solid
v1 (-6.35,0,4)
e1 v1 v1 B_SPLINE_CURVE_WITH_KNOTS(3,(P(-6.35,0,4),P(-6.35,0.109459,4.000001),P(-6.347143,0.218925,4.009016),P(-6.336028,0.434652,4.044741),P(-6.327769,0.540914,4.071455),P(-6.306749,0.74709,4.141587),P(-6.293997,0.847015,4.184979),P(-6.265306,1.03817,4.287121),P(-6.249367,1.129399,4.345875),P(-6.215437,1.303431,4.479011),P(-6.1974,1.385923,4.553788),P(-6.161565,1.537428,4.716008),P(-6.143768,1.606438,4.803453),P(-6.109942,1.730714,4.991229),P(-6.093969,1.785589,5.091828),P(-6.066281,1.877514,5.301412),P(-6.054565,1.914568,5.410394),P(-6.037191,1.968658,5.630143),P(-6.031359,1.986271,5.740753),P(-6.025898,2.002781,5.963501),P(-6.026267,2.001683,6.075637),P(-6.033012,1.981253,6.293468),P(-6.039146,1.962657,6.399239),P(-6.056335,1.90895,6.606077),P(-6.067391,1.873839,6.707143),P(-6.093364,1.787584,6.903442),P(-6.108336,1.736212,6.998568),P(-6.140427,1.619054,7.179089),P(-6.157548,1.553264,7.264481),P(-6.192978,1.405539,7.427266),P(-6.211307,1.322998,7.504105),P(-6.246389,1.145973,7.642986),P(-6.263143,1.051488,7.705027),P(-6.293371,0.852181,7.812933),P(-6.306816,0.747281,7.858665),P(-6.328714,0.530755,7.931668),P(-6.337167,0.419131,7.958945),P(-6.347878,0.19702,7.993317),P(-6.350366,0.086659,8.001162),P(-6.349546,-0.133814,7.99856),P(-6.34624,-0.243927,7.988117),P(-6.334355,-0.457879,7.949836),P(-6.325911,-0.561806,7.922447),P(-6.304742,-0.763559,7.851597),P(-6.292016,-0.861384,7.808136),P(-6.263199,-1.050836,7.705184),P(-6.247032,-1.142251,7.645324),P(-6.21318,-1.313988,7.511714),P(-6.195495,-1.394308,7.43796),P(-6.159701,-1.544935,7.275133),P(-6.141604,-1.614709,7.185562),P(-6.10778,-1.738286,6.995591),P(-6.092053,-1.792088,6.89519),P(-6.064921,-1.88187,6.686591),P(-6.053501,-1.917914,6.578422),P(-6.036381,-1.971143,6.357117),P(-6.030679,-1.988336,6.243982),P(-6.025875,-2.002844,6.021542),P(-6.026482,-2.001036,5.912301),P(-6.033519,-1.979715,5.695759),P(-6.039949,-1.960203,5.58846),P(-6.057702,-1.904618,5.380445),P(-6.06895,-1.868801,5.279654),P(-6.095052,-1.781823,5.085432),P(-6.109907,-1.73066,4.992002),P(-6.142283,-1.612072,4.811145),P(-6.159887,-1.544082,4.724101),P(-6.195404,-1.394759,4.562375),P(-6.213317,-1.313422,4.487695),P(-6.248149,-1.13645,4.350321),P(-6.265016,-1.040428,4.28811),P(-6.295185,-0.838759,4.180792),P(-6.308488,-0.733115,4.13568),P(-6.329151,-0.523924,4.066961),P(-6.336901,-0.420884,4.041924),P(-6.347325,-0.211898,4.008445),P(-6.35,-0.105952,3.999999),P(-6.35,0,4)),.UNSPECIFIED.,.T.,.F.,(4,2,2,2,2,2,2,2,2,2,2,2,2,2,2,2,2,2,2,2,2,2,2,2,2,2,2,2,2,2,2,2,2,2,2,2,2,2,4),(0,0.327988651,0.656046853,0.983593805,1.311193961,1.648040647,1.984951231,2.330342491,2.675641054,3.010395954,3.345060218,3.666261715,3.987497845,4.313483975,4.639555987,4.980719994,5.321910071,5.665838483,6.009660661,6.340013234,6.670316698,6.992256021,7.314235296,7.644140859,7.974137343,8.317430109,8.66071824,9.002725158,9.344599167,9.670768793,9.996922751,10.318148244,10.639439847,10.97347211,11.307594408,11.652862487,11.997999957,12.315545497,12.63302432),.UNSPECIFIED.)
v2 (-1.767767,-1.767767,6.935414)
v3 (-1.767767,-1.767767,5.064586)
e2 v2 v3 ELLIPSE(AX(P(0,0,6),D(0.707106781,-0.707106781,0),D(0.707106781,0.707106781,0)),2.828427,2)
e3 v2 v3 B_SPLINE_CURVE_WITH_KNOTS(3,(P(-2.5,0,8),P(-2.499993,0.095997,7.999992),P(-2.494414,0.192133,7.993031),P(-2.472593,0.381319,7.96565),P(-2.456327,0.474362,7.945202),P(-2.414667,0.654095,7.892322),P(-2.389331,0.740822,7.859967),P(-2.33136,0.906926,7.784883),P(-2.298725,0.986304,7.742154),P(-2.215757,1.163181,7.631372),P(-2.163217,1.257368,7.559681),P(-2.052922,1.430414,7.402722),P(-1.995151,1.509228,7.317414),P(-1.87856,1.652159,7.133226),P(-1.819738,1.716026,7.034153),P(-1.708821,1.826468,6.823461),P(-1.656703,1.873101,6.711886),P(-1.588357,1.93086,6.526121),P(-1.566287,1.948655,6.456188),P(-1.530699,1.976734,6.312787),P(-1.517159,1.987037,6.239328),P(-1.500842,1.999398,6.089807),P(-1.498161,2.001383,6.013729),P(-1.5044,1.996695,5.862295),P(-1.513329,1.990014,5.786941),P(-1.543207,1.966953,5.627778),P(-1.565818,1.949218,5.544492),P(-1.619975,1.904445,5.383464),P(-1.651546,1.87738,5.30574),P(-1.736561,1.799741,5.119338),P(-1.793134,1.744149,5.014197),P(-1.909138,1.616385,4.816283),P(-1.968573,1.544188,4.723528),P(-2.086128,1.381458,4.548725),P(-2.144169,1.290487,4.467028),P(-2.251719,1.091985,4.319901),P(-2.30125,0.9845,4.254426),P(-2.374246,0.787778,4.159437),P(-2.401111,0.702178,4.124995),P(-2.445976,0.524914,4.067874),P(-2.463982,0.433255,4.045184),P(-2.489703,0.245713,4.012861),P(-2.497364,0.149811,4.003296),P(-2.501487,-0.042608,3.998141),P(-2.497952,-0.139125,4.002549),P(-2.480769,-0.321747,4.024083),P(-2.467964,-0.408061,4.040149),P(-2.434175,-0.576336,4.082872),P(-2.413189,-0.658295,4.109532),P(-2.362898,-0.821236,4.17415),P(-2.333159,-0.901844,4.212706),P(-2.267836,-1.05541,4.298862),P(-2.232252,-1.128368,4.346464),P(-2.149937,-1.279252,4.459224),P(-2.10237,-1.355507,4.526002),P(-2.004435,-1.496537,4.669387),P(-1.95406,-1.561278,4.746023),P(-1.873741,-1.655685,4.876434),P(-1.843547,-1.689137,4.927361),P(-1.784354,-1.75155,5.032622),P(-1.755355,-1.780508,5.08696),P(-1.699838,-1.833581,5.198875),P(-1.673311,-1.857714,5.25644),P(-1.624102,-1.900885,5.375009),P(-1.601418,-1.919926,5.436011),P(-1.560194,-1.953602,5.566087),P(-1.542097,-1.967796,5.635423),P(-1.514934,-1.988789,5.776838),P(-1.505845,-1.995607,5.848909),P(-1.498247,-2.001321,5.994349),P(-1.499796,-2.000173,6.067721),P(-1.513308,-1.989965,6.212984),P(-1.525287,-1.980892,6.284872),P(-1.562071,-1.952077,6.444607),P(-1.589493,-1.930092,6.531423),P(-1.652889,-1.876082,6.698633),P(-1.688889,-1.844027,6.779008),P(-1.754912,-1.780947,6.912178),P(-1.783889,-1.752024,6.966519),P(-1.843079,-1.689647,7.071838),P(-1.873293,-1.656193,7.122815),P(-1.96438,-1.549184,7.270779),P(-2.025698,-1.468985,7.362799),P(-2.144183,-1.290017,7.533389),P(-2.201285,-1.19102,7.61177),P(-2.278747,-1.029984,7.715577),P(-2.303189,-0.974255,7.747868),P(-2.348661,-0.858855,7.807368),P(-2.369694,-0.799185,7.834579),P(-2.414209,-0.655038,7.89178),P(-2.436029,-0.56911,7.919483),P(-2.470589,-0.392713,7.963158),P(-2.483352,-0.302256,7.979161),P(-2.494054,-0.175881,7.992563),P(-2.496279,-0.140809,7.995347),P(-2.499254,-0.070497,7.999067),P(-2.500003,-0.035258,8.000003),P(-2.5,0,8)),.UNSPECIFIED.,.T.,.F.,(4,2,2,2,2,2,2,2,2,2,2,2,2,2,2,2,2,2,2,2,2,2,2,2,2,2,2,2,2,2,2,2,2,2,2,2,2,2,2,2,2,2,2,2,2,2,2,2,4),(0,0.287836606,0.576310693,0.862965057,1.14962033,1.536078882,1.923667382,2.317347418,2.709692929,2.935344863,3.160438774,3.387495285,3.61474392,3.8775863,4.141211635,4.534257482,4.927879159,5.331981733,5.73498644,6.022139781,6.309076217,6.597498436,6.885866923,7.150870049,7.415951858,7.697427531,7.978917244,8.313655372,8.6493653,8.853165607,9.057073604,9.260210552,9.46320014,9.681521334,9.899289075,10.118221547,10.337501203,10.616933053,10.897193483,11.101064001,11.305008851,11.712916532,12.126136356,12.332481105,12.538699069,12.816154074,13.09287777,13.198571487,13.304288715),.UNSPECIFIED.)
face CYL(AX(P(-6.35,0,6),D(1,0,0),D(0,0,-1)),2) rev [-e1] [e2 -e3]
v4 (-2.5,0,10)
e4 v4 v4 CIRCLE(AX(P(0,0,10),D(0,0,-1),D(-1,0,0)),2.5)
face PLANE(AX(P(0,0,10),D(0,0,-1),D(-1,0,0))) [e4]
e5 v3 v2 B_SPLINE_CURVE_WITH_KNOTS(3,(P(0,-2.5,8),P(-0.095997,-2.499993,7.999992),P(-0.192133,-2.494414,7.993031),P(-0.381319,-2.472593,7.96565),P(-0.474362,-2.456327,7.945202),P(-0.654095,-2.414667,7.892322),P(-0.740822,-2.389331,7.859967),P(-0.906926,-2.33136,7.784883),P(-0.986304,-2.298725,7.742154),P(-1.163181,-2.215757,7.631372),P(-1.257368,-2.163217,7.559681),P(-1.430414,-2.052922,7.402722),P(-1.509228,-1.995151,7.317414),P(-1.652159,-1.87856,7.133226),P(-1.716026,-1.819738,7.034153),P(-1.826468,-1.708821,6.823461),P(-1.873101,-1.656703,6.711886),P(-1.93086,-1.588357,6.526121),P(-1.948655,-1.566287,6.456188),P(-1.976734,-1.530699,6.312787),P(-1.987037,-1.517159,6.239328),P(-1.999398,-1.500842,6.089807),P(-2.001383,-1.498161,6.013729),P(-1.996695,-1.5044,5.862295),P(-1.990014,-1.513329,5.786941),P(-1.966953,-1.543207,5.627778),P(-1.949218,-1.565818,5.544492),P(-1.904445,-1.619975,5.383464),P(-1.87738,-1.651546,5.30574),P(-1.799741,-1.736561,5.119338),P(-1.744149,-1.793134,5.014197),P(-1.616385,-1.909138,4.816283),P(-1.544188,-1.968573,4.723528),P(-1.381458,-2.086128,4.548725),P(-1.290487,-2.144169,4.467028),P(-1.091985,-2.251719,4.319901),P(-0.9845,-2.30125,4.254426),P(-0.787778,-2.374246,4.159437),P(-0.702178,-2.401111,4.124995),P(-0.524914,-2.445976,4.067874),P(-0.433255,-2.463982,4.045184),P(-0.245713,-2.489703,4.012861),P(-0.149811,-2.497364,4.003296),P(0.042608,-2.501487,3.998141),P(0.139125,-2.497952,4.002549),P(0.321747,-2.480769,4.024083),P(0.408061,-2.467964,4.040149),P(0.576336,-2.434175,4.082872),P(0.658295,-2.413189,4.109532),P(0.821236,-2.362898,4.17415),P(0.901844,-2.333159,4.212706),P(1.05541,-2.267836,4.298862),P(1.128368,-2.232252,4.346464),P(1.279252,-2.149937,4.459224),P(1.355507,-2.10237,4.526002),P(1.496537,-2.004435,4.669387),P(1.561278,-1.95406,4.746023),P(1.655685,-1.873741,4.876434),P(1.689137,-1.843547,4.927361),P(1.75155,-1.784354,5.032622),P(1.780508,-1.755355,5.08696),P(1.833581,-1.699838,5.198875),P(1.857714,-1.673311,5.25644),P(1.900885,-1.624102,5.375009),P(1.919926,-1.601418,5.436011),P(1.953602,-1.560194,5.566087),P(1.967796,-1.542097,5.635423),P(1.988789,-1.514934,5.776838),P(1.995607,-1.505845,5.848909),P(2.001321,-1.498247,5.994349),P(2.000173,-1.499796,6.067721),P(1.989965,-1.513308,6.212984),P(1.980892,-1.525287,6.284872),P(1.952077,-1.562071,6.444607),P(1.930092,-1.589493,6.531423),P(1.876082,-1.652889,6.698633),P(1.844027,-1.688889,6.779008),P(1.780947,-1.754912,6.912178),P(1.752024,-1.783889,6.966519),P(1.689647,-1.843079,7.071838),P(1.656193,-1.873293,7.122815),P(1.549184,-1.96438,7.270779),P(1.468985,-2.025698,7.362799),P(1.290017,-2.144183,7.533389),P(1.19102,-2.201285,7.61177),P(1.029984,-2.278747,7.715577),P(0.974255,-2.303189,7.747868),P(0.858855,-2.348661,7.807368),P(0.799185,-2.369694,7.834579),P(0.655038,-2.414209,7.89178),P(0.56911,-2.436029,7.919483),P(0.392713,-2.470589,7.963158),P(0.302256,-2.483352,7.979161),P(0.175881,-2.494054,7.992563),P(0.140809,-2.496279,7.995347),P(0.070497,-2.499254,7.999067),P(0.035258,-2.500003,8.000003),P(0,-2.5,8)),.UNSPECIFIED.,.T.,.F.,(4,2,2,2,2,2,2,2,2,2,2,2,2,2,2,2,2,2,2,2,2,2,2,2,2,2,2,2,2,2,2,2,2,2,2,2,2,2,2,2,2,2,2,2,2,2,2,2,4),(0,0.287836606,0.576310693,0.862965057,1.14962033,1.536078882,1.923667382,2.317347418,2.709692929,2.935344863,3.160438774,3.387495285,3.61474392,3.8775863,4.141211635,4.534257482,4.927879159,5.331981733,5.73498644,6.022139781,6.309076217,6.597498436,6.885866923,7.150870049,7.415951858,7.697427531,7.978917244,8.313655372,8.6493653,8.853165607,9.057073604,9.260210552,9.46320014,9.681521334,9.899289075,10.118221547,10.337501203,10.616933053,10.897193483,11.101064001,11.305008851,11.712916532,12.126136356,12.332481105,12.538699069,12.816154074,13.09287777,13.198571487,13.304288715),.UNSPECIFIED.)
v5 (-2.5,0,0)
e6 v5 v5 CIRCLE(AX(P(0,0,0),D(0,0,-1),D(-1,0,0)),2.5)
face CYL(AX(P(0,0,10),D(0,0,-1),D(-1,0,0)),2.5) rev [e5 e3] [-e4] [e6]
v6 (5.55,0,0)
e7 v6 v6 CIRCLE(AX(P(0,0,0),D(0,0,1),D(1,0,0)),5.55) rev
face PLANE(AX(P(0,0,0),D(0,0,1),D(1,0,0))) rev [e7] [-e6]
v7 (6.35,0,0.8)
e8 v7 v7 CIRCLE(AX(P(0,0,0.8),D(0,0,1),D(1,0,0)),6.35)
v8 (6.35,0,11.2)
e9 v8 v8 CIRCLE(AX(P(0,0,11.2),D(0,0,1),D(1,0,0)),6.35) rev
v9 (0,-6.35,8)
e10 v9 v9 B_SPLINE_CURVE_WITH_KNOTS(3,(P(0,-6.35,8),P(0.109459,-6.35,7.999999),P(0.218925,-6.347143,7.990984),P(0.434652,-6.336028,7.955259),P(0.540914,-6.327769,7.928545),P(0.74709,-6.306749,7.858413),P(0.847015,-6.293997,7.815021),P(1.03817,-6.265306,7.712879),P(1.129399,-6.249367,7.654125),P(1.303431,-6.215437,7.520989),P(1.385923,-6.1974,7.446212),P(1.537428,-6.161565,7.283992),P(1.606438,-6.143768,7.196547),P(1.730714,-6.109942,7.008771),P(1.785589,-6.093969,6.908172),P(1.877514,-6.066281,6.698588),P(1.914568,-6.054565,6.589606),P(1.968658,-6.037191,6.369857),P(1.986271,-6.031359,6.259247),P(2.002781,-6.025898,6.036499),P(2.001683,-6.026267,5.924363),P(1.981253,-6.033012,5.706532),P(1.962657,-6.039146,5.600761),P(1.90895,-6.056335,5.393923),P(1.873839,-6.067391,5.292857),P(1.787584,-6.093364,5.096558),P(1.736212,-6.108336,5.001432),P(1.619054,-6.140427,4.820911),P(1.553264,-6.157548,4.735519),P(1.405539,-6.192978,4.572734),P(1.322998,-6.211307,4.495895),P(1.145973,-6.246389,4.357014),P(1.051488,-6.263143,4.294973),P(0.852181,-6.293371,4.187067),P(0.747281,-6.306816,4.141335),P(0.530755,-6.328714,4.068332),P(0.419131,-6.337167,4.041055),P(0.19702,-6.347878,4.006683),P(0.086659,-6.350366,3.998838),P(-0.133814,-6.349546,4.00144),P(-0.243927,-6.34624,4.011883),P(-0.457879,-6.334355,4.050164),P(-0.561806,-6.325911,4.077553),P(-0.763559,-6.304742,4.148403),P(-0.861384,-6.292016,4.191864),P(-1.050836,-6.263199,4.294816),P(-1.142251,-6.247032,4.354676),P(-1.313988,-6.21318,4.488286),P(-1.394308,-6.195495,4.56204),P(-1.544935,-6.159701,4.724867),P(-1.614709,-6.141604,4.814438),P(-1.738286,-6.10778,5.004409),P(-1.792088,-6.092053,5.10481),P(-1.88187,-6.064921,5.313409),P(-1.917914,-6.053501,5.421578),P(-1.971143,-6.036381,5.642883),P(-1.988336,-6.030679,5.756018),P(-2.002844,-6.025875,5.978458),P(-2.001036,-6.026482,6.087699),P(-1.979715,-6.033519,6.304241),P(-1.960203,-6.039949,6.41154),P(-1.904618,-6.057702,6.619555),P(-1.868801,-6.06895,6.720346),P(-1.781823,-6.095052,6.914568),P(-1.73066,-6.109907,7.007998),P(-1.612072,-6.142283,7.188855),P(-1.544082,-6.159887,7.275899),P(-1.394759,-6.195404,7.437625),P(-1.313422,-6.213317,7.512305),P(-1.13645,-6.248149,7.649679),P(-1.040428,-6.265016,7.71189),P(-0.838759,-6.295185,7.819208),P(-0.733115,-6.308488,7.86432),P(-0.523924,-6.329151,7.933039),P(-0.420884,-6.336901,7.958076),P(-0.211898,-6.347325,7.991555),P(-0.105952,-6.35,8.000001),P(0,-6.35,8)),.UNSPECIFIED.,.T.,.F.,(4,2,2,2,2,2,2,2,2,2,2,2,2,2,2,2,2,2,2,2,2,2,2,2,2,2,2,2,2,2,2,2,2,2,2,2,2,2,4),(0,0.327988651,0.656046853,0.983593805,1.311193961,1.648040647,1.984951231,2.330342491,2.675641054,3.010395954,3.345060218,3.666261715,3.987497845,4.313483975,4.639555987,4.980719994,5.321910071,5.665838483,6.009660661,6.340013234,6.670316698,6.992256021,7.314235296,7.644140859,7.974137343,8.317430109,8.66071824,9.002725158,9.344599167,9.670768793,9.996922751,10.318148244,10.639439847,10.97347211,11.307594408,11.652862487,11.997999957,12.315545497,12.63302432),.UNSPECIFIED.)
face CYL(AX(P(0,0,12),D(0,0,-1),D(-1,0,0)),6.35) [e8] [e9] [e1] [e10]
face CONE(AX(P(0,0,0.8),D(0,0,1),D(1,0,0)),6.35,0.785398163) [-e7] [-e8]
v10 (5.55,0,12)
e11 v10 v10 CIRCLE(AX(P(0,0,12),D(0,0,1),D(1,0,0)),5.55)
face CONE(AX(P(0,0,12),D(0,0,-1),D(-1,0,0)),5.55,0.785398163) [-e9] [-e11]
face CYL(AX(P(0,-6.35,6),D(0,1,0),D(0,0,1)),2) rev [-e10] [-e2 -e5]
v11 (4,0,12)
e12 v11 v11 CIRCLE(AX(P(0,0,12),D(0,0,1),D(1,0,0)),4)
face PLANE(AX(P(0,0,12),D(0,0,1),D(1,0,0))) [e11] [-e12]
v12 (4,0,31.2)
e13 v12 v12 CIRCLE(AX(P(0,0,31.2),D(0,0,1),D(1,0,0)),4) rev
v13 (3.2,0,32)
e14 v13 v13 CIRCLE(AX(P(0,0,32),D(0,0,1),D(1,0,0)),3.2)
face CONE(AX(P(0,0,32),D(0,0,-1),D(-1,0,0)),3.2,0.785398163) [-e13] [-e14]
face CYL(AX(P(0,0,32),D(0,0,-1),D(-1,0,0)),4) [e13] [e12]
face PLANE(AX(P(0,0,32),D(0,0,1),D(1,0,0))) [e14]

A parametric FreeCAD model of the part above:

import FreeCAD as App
import Part
import Sketcher

V = App.Vector


def edges_at(feature, points):
    """Names of the edges that pass closest to the given points."""
    edges = feature.Shape.Edges
    near = lambda p: min(range(len(edges)), key=lambda i: edges[i].distToShape(Part.Vertex(*p))[0])
    return sorted({f"Edge{near(p) + 1}" for p in points})

doc = App.newDocument("Part")
params = doc.addObject("Spreadsheet::Sheet", "Params")
for row, (alias, value) in enumerate([
    ("sketch1_diameter", "12.7 mm"),
    ("pad1_length", "12 mm"),
    ("sketch2_diameter", "8 mm"),
    ("pad2_length", "20 mm"),
    ("sketch3_diameter", "5 mm"),
    ("pocket1_length", "10 mm"),
    ("sketch4_diameter", "4 mm"),
    ("sketch5_diameter", "4 mm"),
    ("chamfer_size", "0.8 mm"),
], start=1):
    params.set(f"A{row}", alias)
    params.set(f"B{row}", "=" + value)
    params.setAlias(f"B{row}", alias)

body = doc.addObject("PartDesign::Body", "Body")

# Sketch on XY plane
sketch1 = body.newObject("Sketcher::SketchObject", "Sketch")
sketch1.AttachmentSupport = (doc.getObject("XY_Plane"), [""])
sketch1.MapMode = "FlatFace"
sketch1.addGeometry(Part.Circle(V(0, 0, 0), V(0, 0, 1), 6.35), False)
sketch1.addConstraint([
    Sketcher.Constraint("Coincident", 0, 3, -1, 1),
    Sketcher.Constraint("Diameter", 0, 12.7),
])
sketch1.setExpression("Constraints[1]", "Params.sketch1_diameter")
pad1 = body.newObject("PartDesign::Pad", "Pad")
pad1.Profile = sketch1
pad1.setExpression("Length", "Params.pad1_length")

# Sketch on XY plane
sketch2 = body.newObject("Sketcher::SketchObject", "Sketch001")
sketch2.AttachmentSupport = (doc.getObject("XY_Plane"), [""])
sketch2.MapMode = "FlatFace"
sketch2.AttachmentOffset = App.Placement(V(0, 0, 12), App.Rotation())
sketch2.addGeometry(Part.Circle(V(0, 0, 0), V(0, 0, 1), 4), False)
sketch2.addConstraint([
    Sketcher.Constraint("Coincident", 0, 3, -1, 1),
    Sketcher.Constraint("Diameter", 0, 8.0),
])
sketch2.setExpression("Constraints[1]", "Params.sketch2_diameter")
pad2 = body.newObject("PartDesign::Pad", "Pad001")
pad2.Profile = sketch2
pad2.setExpression("Length", "Params.pad2_length")

# Sketch on XY plane
sketch3 = body.newObject("Sketcher::SketchObject", "Sketch002")
sketch3.AttachmentSupport = (doc.getObject("XY_Plane"), [""])
sketch3.MapMode = "FlatFace"
sketch3.addGeometry(Part.Circle(V(0, 0, 0), V(0, 0, 1), 2.5), False)
sketch3.addConstraint([
    Sketcher.Constraint("Coincident", 0, 3, -1, 1),
    Sketcher.Constraint("Diameter", 0, 5.0),
])
sketch3.setExpression("Constraints[1]", "Params.sketch3_diameter")
pocket1 = body.newObject("PartDesign::Pocket", "Pocket")
pocket1.Profile = sketch3
pocket1.setExpression("Length", "Params.pocket1_length")
pocket1.Reversed = True

# Sketch on YZ plane
sketch4 = body.newObject("Sketcher::SketchObject", "Sketch003")
sketch4.AttachmentSupport = (doc.getObject("YZ_Plane"), [""])
sketch4.MapMode = "FlatFace"
sketch4.addGeometry(Part.Circle(V(0, 6, 0), V(0, 0, 1), 2), False)
sketch4.addConstraint([
    Sketcher.Constraint("PointOnObject", 0, 3, -2),
    Sketcher.Constraint("Diameter", 0, 4.0),
    Sketcher.Constraint("DistanceY", -1, 1, 0, 3, 6.0),
])
sketch4.setExpression("Constraints[1]", "Params.sketch4_diameter")
pocket2 = body.newObject("PartDesign::Pocket", "Pocket001")
pocket2.Profile = sketch4
pocket2.Type = "ThroughAll"

# Sketch on XZ plane
sketch5 = body.newObject("Sketcher::SketchObject", "Sketch004")
sketch5.AttachmentSupport = (doc.getObject("XZ_Plane"), [""])
sketch5.MapMode = "FlatFace"
sketch5.addGeometry(Part.Circle(V(0, 6, 0), V(0, 0, 1), 2), False)
sketch5.addConstraint([
    Sketcher.Constraint("PointOnObject", 0, 3, -2),
    Sketcher.Constraint("Diameter", 0, 4.0),
    Sketcher.Constraint("DistanceY", -1, 1, 0, 3, 6.0),
])
sketch5.setExpression("Constraints[1]", "Params.sketch5_diameter")
pocket3 = body.newObject("PartDesign::Pocket", "Pocket002")
pocket3.Profile = sketch5
pocket3.Type = "ThroughAll"
pocket3.Reversed = True
doc.recompute()

chamfer = body.newObject("PartDesign::Chamfer", "Chamfer")
chamfer.Base = (pocket3, edges_at(pocket3, [(-6.35, 0, 0), (-6.35, 0, 12), (-4, 0, 32)]))
chamfer.setExpression("Size", "Params.chamfer_size")

doc.recompute()
